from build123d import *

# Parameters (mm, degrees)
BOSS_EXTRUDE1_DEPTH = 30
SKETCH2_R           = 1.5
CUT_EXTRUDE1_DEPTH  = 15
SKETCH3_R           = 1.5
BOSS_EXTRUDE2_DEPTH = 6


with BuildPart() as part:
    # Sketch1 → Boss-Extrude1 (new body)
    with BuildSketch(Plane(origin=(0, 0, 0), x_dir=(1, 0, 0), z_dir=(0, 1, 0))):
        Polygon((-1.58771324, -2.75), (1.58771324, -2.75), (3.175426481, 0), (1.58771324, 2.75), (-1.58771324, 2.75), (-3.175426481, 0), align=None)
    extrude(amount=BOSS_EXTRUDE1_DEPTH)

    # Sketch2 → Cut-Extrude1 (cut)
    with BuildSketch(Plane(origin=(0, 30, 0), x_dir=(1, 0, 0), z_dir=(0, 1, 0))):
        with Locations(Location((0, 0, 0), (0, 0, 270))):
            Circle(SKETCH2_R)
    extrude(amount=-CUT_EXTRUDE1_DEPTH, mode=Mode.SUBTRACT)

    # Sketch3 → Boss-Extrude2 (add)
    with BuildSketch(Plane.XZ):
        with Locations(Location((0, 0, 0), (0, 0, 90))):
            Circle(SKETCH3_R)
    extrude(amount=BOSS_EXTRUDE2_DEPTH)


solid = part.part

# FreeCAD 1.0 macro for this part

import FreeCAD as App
import Part
import Sketcher
from FreeCAD import Vector
Q = App.Units.Quantity

doc = App.newDocument("Part")
body = doc.addObject("PartDesign::Body", "Body")

# Sketch on XZ plane
sketch1 = body.newObject("Sketcher::SketchObject", "Sketch")
sketch1.AttachmentSupport = (doc.getObject("XZ_Plane"), [""])
sketch1.MapMode = "FlatFace"
sketch1.addGeometry([
    Part.LineSegment(Vector(-1.587713, 2.75, 0), Vector(1.587713, 2.75, 0)),  # 0
    Part.LineSegment(Vector(1.587713, 2.75, 0), Vector(3.175426, 0, 0)),  # 1
    Part.LineSegment(Vector(3.175426, 0, 0), Vector(1.587713, -2.75, 0)),  # 2
    Part.LineSegment(Vector(1.587713, -2.75, 0), Vector(-1.587713, -2.75, 0)),  # 3
    Part.LineSegment(Vector(-1.587713, -2.75, 0), Vector(-3.175426, 0, 0)),  # 4
    Part.LineSegment(Vector(-3.175426, 0, 0), Vector(-1.587713, 2.75, 0)),  # 5
], False)
sketch1.addConstraint([
    Sketcher.Constraint("Coincident", 0, 2, 1, 1),
    Sketcher.Constraint("Coincident", 1, 2, 2, 1),
    Sketcher.Constraint("Coincident", 2, 2, 3, 1),
    Sketcher.Constraint("Coincident", 3, 2, 4, 1),
    Sketcher.Constraint("Coincident", 4, 2, 5, 1),
    Sketcher.Constraint("Coincident", 5, 2, 0, 1),
    Sketcher.Constraint("Horizontal", 0),
    Sketcher.Constraint("Horizontal", 3),
    Sketcher.Constraint("Symmetric", 0, 2, 3, 2, -1, 1),
    Sketcher.Constraint("Symmetric", 1, 2, 4, 2, -1, 1),
    Sketcher.Constraint("PointOnObject", 1, 2, -1),
    Sketcher.Constraint("Parallel", 2, 5),
    Sketcher.Constraint("Vertical", 0, 2, 2, 2),
    Sketcher.Constraint("Angle", 1, Q("-60 deg")),
    Sketcher.Constraint("DistanceY", 2, 2, 0, 2, Q("5.5 mm")),
    Sketcher.Constraint("DistanceX", 0, 1, 0, 2, Q("3.175426 mm")),
])
pad1 = body.newObject("PartDesign::Pad", "Pad")
pad1.Profile = sketch1
pad1.Length = 30
pad1.Reversed = True

# Sketch on XZ plane
sketch2 = body.newObject("Sketcher::SketchObject", "Sketch001")
sketch2.AttachmentSupport = (doc.getObject("XZ_Plane"), [""])
sketch2.MapMode = "FlatFace"
sketch2.AttachmentOffset = App.Placement(Vector(0, 0, -30), App.Rotation())
sketch2.addGeometry(Part.Circle(Vector(0, 0, 0), Vector(0, 0, 1), 1.5), False)
sketch2.addConstraint([
    Sketcher.Constraint("Coincident", 0, 3, -1, 1),
    Sketcher.Constraint("Diameter", 0, Q("3 mm")),
])
pocket1 = body.newObject("PartDesign::Pocket", "Pocket")
pocket1.Profile = sketch2
pocket1.Length = 15
pocket1.Reversed = True

# Sketch on XZ plane
sketch3 = body.newObject("Sketcher::SketchObject", "Sketch002")
sketch3.AttachmentSupport = (doc.getObject("XZ_Plane"), [""])
sketch3.MapMode = "FlatFace"
sketch3.addGeometry(Part.Circle(Vector(0, 0, 0), Vector(0, 0, 1), 1.5), False)
sketch3.addConstraint([
    Sketcher.Constraint("Coincident", 0, 3, -1, 1),
    Sketcher.Constraint("Diameter", 0, Q("3 mm")),
])
pad2 = body.newObject("PartDesign::Pad", "Pad001")
pad2.Profile = sketch3
pad2.Length = 6

doc.recompute()
